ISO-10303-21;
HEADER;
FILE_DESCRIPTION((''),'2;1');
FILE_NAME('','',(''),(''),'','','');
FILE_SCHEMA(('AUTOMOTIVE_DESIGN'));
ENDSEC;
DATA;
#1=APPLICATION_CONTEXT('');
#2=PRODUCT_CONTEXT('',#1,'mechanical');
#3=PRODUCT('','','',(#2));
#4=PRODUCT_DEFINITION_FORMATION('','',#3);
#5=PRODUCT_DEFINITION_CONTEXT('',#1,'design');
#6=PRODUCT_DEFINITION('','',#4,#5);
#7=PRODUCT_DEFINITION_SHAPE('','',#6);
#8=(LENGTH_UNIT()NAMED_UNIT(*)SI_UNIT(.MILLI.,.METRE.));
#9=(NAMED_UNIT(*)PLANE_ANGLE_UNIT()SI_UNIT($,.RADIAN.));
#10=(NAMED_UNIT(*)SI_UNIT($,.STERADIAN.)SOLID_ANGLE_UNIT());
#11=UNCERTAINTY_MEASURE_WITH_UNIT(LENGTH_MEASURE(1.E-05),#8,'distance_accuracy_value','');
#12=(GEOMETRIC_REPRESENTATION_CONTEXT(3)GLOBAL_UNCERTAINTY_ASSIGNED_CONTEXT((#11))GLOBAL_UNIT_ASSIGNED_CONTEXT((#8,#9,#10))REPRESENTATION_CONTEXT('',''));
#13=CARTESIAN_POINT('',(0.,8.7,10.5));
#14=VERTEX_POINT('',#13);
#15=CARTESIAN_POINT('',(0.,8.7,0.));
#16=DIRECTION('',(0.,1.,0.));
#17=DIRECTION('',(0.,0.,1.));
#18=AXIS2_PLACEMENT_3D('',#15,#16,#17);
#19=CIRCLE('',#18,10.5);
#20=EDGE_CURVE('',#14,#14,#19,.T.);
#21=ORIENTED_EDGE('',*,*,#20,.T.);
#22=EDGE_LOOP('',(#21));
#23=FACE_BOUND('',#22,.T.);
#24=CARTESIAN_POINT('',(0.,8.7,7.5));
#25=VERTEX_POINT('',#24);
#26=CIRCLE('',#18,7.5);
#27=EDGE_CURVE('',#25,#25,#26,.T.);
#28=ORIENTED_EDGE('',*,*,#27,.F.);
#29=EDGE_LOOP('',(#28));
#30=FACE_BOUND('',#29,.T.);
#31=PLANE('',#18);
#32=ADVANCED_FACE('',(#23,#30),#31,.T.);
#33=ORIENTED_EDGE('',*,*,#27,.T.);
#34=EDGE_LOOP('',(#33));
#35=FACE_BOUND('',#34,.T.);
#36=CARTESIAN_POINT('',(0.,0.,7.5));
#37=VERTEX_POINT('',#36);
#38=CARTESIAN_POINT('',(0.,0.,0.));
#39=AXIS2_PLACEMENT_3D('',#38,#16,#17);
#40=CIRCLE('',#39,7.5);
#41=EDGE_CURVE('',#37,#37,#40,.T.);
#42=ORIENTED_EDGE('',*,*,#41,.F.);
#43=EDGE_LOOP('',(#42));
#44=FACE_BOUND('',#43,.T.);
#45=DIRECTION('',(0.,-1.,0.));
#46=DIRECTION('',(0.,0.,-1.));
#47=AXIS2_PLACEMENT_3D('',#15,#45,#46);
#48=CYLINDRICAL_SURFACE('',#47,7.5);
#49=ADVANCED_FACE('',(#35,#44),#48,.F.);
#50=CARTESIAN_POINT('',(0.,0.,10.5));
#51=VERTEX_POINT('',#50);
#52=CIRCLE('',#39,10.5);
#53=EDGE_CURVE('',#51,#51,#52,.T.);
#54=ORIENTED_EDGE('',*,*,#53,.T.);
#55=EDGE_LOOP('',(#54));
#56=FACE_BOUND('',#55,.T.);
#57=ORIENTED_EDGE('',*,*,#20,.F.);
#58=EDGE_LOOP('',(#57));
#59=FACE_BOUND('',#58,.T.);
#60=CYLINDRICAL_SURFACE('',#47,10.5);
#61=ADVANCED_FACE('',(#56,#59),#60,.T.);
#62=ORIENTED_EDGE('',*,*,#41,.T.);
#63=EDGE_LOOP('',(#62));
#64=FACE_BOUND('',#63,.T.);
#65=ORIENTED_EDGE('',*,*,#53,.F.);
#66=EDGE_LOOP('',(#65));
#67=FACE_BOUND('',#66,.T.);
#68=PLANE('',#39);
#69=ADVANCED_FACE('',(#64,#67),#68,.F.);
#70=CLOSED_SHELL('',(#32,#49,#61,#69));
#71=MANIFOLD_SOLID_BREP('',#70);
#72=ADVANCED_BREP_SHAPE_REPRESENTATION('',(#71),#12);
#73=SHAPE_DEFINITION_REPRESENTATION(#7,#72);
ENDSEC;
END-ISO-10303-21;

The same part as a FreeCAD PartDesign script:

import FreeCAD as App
import Part
import Sketcher

doc = App.newDocument("Part")
params = doc.addObject("Spreadsheet::Sheet", "Params")
for row, (alias, value) in enumerate([
    ("sketch1_diameter", "21 mm"),
    ("sketch1_diameter2", "15 mm"),
    ("pad1_length", "8.7 mm"),
], start=1):
    params.set(f"A{row}", alias)
    params.set(f"B{row}", "=" + value)
    params.setAlias(f"B{row}", alias)

body = doc.addObject("PartDesign::Body", "Body")

sketch1 = body.newObject("Sketcher::SketchObject", "Sketch")
sketch1.AttachmentSupport = (doc.getObject("XZ_Plane"), [""])
sketch1.MapMode = "FlatFace"
sketch1.addGeometry(Part.Circle(App.Vector(0, 0, 0), App.Vector(0, 0, 1), 10), False)
sketch1.addGeometry(Part.Circle(App.Vector(0, 0, 0), App.Vector(0, 0, 1), 8), False)
sketch1.addConstraint(Sketcher.Constraint("Coincident", 0, 3, -1, 1))
sketch1.addConstraint(Sketcher.Constraint("Coincident", 1, 3, -1, 1))
sketch1.addConstraint(Sketcher.Constraint("Diameter", 0, 21.0))
sketch1.addConstraint(Sketcher.Constraint("Diameter", 1, 15.0))
sketch1.setExpression("Constraints[2]", "Params.sketch1_diameter")
sketch1.setExpression("Constraints[3]", "Params.sketch1_diameter2")
pad1 = body.newObject("PartDesign::Pad", "Pad")
pad1.Profile = sketch1
pad1.setExpression("Length", "Params.pad1_length")
pad1.Reversed = True

doc.recompute()
